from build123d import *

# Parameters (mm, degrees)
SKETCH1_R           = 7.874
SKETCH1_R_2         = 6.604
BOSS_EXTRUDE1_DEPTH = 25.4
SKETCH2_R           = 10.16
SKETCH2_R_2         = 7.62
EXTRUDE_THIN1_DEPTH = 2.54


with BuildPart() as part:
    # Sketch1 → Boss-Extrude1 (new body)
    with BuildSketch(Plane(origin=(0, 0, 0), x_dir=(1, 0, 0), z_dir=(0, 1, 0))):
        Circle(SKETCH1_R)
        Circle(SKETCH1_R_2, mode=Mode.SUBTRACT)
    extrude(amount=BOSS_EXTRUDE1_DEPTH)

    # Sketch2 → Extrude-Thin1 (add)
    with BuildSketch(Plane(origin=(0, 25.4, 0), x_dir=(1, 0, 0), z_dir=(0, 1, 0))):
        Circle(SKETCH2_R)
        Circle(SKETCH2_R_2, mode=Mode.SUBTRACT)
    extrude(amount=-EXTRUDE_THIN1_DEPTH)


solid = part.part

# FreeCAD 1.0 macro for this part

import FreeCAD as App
import Part
import Sketcher
Q = App.Units.Quantity

doc = App.newDocument("Part")
body = doc.addObject("PartDesign::Body", "Body")

sketch1 = doc.addObject("Sketcher::SketchObject", "Sketch")
body.addObject(sketch1)
sketch1.AttachmentSupport = (doc.XZ_Plane, [""])
sketch1.MapMode = "FlatFace"
sketch1.addGeometry([
    Part.Circle(App.Vector(0, 0, 0), App.Vector(0, 0, 1), 8),
    Part.Circle(App.Vector(0, 0, 0), App.Vector(0, 0, 1), 7),
], False)
sketch1.addConstraint([
    Sketcher.Constraint("Coincident", 0, 3, -1, 1),
    Sketcher.Constraint("Coincident", 1, 3, -1, 1),
    Sketcher.Constraint("Diameter", 0, Q("0.62 in")),
    Sketcher.Constraint("Diameter", 1, Q("0.52 in")),
])
pad1 = doc.addObject("PartDesign::Pad", "Pad")
body.addObject(pad1)
pad1.Profile = sketch1
pad1.Length = Q("1 in")
pad1.Reversed = True

sketch2 = doc.addObject("Sketcher::SketchObject", "Sketch001")
body.addObject(sketch2)
sketch2.AttachmentSupport = (doc.XZ_Plane, [""])
sketch2.MapMode = "FlatFace"
sketch2.AttachmentOffset = App.Placement(App.Vector(0, 0, -1 * 25.4), App.Rotation())
sketch2.addGeometry([
    Part.Circle(App.Vector(0, 0, 0), App.Vector(0, 0, 1), 10),
    Part.Circle(App.Vector(0, 0, 0), App.Vector(0, 0, 1), 8),
], False)
sketch2.addConstraint([
    Sketcher.Constraint("Coincident", 0, 3, -1, 1),
    Sketcher.Constraint("Coincident", 1, 3, -1, 1),
    Sketcher.Constraint("Diameter", 0, Q("0.8 in")),
    Sketcher.Constraint("Diameter", 1, Q("0.6 in")),
])
pad2 = doc.addObject("PartDesign::Pad", "Pad001")
body.addObject(pad2)
pad2.Profile = sketch2
pad2.Length = Q("0.1 in")

doc.recompute()
